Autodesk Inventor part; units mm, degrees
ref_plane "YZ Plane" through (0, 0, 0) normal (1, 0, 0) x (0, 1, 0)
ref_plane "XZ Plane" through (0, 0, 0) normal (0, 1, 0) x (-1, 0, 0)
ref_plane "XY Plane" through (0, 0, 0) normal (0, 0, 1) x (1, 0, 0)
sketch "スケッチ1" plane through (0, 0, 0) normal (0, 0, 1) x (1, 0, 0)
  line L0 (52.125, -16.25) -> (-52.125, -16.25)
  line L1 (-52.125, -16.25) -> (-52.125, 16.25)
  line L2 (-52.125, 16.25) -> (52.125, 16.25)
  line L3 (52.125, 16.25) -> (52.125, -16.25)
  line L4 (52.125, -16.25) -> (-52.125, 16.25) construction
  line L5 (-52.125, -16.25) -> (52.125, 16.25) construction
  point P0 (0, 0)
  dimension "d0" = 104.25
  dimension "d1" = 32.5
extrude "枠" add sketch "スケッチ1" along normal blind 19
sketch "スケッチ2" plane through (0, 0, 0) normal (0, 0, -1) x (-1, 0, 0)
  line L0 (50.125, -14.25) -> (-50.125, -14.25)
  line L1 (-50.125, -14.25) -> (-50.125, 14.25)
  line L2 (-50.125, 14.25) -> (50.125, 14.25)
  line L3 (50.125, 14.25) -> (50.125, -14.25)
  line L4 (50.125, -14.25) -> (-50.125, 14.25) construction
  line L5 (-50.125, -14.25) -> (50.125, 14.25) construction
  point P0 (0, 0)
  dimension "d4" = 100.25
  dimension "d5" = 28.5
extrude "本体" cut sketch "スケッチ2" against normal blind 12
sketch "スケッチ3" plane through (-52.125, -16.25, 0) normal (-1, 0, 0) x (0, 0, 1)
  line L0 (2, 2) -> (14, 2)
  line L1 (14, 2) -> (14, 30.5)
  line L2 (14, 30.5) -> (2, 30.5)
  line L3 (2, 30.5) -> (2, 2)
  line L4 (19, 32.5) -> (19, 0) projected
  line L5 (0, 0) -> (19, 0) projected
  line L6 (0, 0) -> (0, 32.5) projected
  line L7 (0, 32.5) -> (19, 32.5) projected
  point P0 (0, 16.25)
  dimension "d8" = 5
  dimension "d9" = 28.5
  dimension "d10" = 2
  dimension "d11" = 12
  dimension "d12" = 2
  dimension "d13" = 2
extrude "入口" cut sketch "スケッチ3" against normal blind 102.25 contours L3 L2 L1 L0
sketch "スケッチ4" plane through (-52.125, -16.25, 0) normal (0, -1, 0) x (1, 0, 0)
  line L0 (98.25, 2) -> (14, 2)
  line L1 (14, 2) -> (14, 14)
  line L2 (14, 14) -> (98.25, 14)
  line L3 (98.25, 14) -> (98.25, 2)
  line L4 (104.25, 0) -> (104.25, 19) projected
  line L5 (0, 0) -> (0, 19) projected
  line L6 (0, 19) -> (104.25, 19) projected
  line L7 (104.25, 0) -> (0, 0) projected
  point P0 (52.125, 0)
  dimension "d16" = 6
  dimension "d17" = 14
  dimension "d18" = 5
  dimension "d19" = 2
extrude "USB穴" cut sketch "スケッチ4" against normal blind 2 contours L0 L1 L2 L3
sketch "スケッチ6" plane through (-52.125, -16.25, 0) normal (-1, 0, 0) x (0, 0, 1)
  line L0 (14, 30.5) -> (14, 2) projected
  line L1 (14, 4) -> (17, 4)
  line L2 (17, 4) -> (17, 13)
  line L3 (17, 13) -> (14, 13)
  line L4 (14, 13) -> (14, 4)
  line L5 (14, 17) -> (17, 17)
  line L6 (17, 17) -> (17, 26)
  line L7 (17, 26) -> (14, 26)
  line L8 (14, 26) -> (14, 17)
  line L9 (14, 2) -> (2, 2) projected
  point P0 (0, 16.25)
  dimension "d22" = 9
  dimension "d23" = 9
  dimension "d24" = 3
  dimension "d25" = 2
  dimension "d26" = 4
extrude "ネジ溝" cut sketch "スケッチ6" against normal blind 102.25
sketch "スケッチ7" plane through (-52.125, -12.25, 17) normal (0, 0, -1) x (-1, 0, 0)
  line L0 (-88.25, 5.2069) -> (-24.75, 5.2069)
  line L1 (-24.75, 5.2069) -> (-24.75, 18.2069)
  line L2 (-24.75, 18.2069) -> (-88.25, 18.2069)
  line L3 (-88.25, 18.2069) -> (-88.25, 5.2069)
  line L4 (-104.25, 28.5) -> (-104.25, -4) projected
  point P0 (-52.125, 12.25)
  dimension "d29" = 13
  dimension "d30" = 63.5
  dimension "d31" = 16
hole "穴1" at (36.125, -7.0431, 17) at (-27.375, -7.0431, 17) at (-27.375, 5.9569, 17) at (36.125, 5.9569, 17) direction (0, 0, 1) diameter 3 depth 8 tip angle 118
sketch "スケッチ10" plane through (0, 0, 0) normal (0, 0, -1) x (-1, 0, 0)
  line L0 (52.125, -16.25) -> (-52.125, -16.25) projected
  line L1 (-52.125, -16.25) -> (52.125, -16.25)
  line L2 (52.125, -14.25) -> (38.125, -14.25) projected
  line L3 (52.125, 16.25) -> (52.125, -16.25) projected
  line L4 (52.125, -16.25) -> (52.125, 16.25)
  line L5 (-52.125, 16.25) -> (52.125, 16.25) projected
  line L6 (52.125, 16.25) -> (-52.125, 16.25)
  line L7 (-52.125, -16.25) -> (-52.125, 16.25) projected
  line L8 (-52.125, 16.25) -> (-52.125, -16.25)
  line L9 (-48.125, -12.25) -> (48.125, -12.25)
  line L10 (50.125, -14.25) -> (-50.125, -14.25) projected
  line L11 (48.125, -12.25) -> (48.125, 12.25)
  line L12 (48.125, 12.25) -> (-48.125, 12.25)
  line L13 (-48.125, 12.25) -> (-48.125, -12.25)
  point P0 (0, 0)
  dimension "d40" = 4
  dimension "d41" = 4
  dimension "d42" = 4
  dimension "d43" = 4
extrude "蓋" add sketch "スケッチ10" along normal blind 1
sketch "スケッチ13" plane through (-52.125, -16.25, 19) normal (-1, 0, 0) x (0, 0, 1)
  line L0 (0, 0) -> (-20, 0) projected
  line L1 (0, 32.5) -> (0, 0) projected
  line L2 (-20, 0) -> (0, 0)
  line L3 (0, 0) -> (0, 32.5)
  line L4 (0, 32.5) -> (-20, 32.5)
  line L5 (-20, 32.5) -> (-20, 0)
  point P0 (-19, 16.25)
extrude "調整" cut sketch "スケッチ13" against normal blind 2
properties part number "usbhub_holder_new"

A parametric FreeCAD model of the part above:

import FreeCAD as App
import Part
import Sketcher

V = App.Vector

doc = App.newDocument("Part")
body = doc.addObject("PartDesign::Body", "Body")

# Sketch on XY plane
sketch1 = body.newObject("Sketcher::SketchObject", "Sketch")
sketch1.AttachmentSupport = (doc.getObject("XY_Plane"), [""])
sketch1.MapMode = "FlatFace"
sketch1.addGeometry([
    Part.LineSegment(V(-52, -16, 0), V(52, -16, 0)),
    Part.LineSegment(V(52, -16, 0), V(52, 16, 0)),
    Part.LineSegment(V(52, 16, 0), V(-52, 16, 0)),
    Part.LineSegment(V(-52, 16, 0), V(-52, -16, 0)),
], False)
sketch1.addConstraint([
    Sketcher.Constraint("Coincident", 0, 2, 1, 1),
    Sketcher.Constraint("Coincident", 1, 2, 2, 1),
    Sketcher.Constraint("Coincident", 2, 2, 3, 1),
    Sketcher.Constraint("Coincident", 3, 2, 0, 1),
    Sketcher.Constraint("Horizontal", 0),
    Sketcher.Constraint("Vertical", 1),
    Sketcher.Constraint("Horizontal", 2),
    Sketcher.Constraint("Vertical", 3),
    Sketcher.Constraint("Symmetric", 0, 2, 2, 2, -1, 1),
    Sketcher.Constraint("DistanceY", 1, 1, 1, 2, 32.5),
    Sketcher.Constraint("DistanceX", 0, 1, 0, 2, 104.25),
])
pad1 = body.newObject("PartDesign::Pad", "Pad")
pad1.Profile = sketch1
pad1.Length = 19

# Sketch on XY plane
sketch2 = body.newObject("Sketcher::SketchObject", "Sketch001")
sketch2.AttachmentSupport = (doc.getObject("XY_Plane"), [""])
sketch2.MapMode = "FlatFace"
sketch2.addGeometry([
    Part.LineSegment(V(50, -14, 0), V(-50, -14, 0)),
    Part.LineSegment(V(-50, -14, 0), V(-50, 14, 0)),
    Part.LineSegment(V(-50, 14, 0), V(50, 14, 0)),
    Part.LineSegment(V(50, 14, 0), V(50, -14, 0)),
], False)
sketch2.addConstraint([
    Sketcher.Constraint("Coincident", 0, 2, 1, 1),
    Sketcher.Constraint("Coincident", 1, 2, 2, 1),
    Sketcher.Constraint("Coincident", 2, 2, 3, 1),
    Sketcher.Constraint("Coincident", 3, 2, 0, 1),
    Sketcher.Constraint("Horizontal", 0),
    Sketcher.Constraint("Vertical", 1),
    Sketcher.Constraint("Horizontal", 2),
    Sketcher.Constraint("Vertical", 3),
    Sketcher.Constraint("Symmetric", 0, 2, 2, 2, -1, 1),
    Sketcher.Constraint("DistanceY", 1, 1, 1, 2, 28.5),
    Sketcher.Constraint("DistanceX", 0, 2, 0, 1, 100.25),
])
pocket1 = body.newObject("PartDesign::Pocket", "Pocket")
pocket1.Profile = sketch2
pocket1.Length = 12
pocket1.Reversed = True

# Sketch on YZ plane
sketch3 = body.newObject("Sketcher::SketchObject", "Sketch002")
sketch3.AttachmentSupport = (doc.getObject("YZ_Plane"), [""])
sketch3.MapMode = "FlatFace"
sketch3.AttachmentOffset = App.Placement(V(0, 0, -52.125), App.Rotation())
sketch3.addGeometry([
    Part.LineSegment(V(14, 2, 0), V(-14, 2, 0)),
    Part.LineSegment(V(-14, 2, 0), V(-14, 14, 0)),
    Part.LineSegment(V(-14, 14, 0), V(14, 14, 0)),
    Part.LineSegment(V(14, 14, 0), V(14, 2, 0)),
], False)
sketch3.addConstraint([
    Sketcher.Constraint("Coincident", 0, 2, 1, 1),
    Sketcher.Constraint("Coincident", 1, 2, 2, 1),
    Sketcher.Constraint("Coincident", 2, 2, 3, 1),
    Sketcher.Constraint("Coincident", 3, 2, 0, 1),
    Sketcher.Constraint("Horizontal", 0),
    Sketcher.Constraint("Vertical", 1),
    Sketcher.Constraint("Horizontal", 2),
    Sketcher.Constraint("Vertical", 3),
    Sketcher.Constraint("DistanceY", 1, 1, 1, 2, 12.0),
    Sketcher.Constraint("DistanceX", 0, 2, 0, 1, 28.5),
    Sketcher.Constraint("DistanceY", -1, 1, 0, 2, 2.0),
    Sketcher.Constraint("DistanceX", 0, 2, -1, 1, 14.25),
])
pocket2 = body.newObject("PartDesign::Pocket", "Pocket001")
pocket2.Profile = sketch3
pocket2.Length = 102.25
pocket2.Reversed = True

# Sketch on XZ plane
sketch4 = body.newObject("Sketcher::SketchObject", "Sketch003")
sketch4.AttachmentSupport = (doc.getObject("XZ_Plane"), [""])
sketch4.MapMode = "FlatFace"
sketch4.AttachmentOffset = App.Placement(V(0, 0, 16.25), App.Rotation())
sketch4.addGeometry([
    Part.LineSegment(V(-38, 2, 0), V(46, 2, 0)),
    Part.LineSegment(V(46, 2, 0), V(46, 14, 0)),
    Part.LineSegment(V(46, 14, 0), V(-38, 14, 0)),
    Part.LineSegment(V(-38, 14, 0), V(-38, 2, 0)),
], False)
sketch4.addConstraint([
    Sketcher.Constraint("Coincident", 0, 2, 1, 1),
    Sketcher.Constraint("Coincident", 1, 2, 2, 1),
    Sketcher.Constraint("Coincident", 2, 2, 3, 1),
    Sketcher.Constraint("Coincident", 3, 2, 0, 1),
    Sketcher.Constraint("Horizontal", 0),
    Sketcher.Constraint("Vertical", 1),
    Sketcher.Constraint("Horizontal", 2),
    Sketcher.Constraint("Vertical", 3),
    Sketcher.Constraint("DistanceY", -1, 1, 0, 2, 2.0),
    Sketcher.Constraint("DistanceY", -1, 1, 1, 2, 14.0),
    Sketcher.Constraint("DistanceX", 0, 1, 0, 2, 84.25),
    Sketcher.Constraint("DistanceX", -1, 1, 0, 2, 46.125),
])
pocket3 = body.newObject("PartDesign::Pocket", "Pocket002")
pocket3.Profile = sketch4
pocket3.Length = 2

# Sketch on YZ plane
sketch5 = body.newObject("Sketcher::SketchObject", "Sketch004")
sketch5.AttachmentSupport = (doc.getObject("YZ_Plane"), [""])
sketch5.MapMode = "FlatFace"
sketch5.AttachmentOffset = App.Placement(V(0, 0, -52.125), App.Rotation())
sketch5.addGeometry([
    Part.LineSegment(V(9.8, 17, 0), V(9.8, 14, 0)),  # 0
    Part.LineSegment(V(9.8, 14, 0), V(0.8, 14, 0)),  # 1
    Part.LineSegment(V(0.8, 14, 0), V(0.8, 17, 0)),  # 2
    Part.LineSegment(V(0.8, 17, 0), V(9.8, 17, 0)),  # 3
    Part.LineSegment(V(-3.2, 17, 0), V(-3.2, 14, 0)),  # 4
    Part.LineSegment(V(-3.2, 14, 0), V(-12.2, 14, 0)),  # 5
    Part.LineSegment(V(-12.2, 14, 0), V(-12.2, 17, 0)),  # 6
    Part.LineSegment(V(-12.2, 17, 0), V(-3.2, 17, 0)),  # 7
], False)
sketch5.addConstraint([
    Sketcher.Constraint("Coincident", 0, 2, 1, 1),
    Sketcher.Constraint("Coincident", 1, 2, 2, 1),
    Sketcher.Constraint("Coincident", 2, 2, 3, 1),
    Sketcher.Constraint("Coincident", 3, 2, 0, 1),
    Sketcher.Constraint("Coincident", 4, 2, 5, 1),
    Sketcher.Constraint("Coincident", 5, 2, 6, 1),
    Sketcher.Constraint("Coincident", 6, 2, 7, 1),
    Sketcher.Constraint("Coincident", 7, 2, 4, 1),
    Sketcher.Constraint("Vertical", 0),
    Sketcher.Constraint("Horizontal", 1),
    Sketcher.Constraint("Vertical", 2),
    Sketcher.Constraint("Horizontal", 3),
    Sketcher.Constraint("Vertical", 4),
    Sketcher.Constraint("Horizontal", 5),
    Sketcher.Constraint("Vertical", 6),
    Sketcher.Constraint("Horizontal", 7),
    Sketcher.Constraint("Horizontal", 1, 2, 4, 2),
    Sketcher.Constraint("Horizontal", 3, 2, 6, 2),
    Sketcher.Constraint("Equal", 3, 5),
    Sketcher.Constraint("DistanceX", 1, 2, 1, 1, 9.0),
    Sketcher.Constraint("DistanceY", 0, 2, 0, 1, 3.0),
    Sketcher.Constraint("DistanceX", 4, 2, 1, 2, 4.0),
    Sketcher.Constraint("DistanceY", -1, 1, 0, 2, 14.0),
    Sketcher.Constraint("DistanceX", -1, 1, 0, 2, 9.75),
])
pocket4 = body.newObject("PartDesign::Pocket", "Pocket003")
pocket4.Profile = sketch5
pocket4.Length = 102.25
pocket4.Reversed = True

# Sketch on XY plane
sketch6 = body.newObject("Sketcher::SketchObject", "Sketch005")
sketch6.AttachmentSupport = (doc.getObject("XY_Plane"), [""])
sketch6.MapMode = "FlatFace"
sketch6.AttachmentOffset = App.Placement(V(0, 0, 17), App.Rotation())
sketch6.addGeometry([
    Part.Circle(V(36.1, -7, 0), V(0, 0, 1), 1.5),
    Part.Circle(V(-27.4, -7, 0), V(0, 0, 1), 1.5),
    Part.Circle(V(-27.4, 6, 0), V(0, 0, 1), 1.5),
    Part.Circle(V(36.1, 6, 0), V(0, 0, 1), 1.5),
], False)
sketch6.addConstraint([
    Sketcher.Constraint("Equal", 0, 1),
    Sketcher.Constraint("Equal", 1, 2),
    Sketcher.Constraint("Equal", 2, 3),
    Sketcher.Constraint("Horizontal", 0, 3, 1, 3),
    Sketcher.Constraint("Horizontal", 2, 3, 3, 3),
    Sketcher.Constraint("Vertical", 1, 3, 2, 3),
    Sketcher.Constraint("Vertical", 0, 3, 3, 3),
    Sketcher.Constraint("Diameter", 0, 3.0),
    Sketcher.Constraint("DistanceY", 1, 3, 2, 3, 13.0),
    Sketcher.Constraint("DistanceX", 1, 3, 0, 3, 63.5),
    Sketcher.Constraint("DistanceX", -1, 1, 0, 3, 36.125),
    Sketcher.Constraint("DistanceY", 0, 3, -1, 1, 7.043),
])
doc.recompute()
hole = body.newObject("PartDesign::Hole", "Hole")
hole.Profile = sketch6
hole.ThreadType = "None"
hole.Diameter = 3
hole.DepthType = "Dimension"
hole.Depth = 8
hole.DrillPoint = "Angled"
hole.DrillPointAngle = 118
hole.Reversed = True

# Sketch on XY plane
sketch7 = body.newObject("Sketcher::SketchObject", "Sketch006")
sketch7.AttachmentSupport = (doc.getObject("XY_Plane"), [""])
sketch7.MapMode = "FlatFace"
sketch7.addGeometry([
    Part.LineSegment(V(52, -16, 0), V(-52, -16, 0)),  # 0
    Part.LineSegment(V(-52, -16, 0), V(-52, 16, 0)),  # 1
    Part.LineSegment(V(-52, 16, 0), V(52, 16, 0)),  # 2
    Part.LineSegment(V(52, 16, 0), V(52, -16, 0)),  # 3
    Part.LineSegment(V(-48, -12, 0), V(48, -12, 0)),  # 4
    Part.LineSegment(V(48, -12, 0), V(48, 12, 0)),  # 5
    Part.LineSegment(V(48, 12, 0), V(-48, 12, 0)),  # 6
    Part.LineSegment(V(-48, 12, 0), V(-48, -12, 0)),  # 7
], False)
sketch7.addConstraint([
    Sketcher.Constraint("Coincident", 0, 2, 1, 1),
    Sketcher.Constraint("Coincident", 1, 2, 2, 1),
    Sketcher.Constraint("Coincident", 2, 2, 3, 1),
    Sketcher.Constraint("Coincident", 3, 2, 0, 1),
    Sketcher.Constraint("Coincident", 4, 2, 5, 1),
    Sketcher.Constraint("Coincident", 5, 2, 6, 1),
    Sketcher.Constraint("Coincident", 6, 2, 7, 1),
    Sketcher.Constraint("Coincident", 7, 2, 4, 1),
    Sketcher.Constraint("Horizontal", 0),
    Sketcher.Constraint("Vertical", 1),
    Sketcher.Constraint("Horizontal", 2),
    Sketcher.Constraint("Vertical", 3),
    Sketcher.Constraint("Horizontal", 4),
    Sketcher.Constraint("Vertical", 5),
    Sketcher.Constraint("Horizontal", 6),
    Sketcher.Constraint("Vertical", 7),
    Sketcher.Constraint("Symmetric", 0, 2, 2, 2, -1, 1),
    Sketcher.Constraint("Symmetric", 4, 2, 6, 2, -1, 1),
    Sketcher.Constraint("DistanceX", 4, 2, 3, 2, 4.0),
    Sketcher.Constraint("DistanceY", 3, 2, 4, 2, 4.0),
    Sketcher.Constraint("DistanceY", 1, 1, 1, 2, 32.5),
    Sketcher.Constraint("DistanceX", 0, 2, 0, 1, 104.25),
])
pad2 = body.newObject("PartDesign::Pad", "Pad001")
pad2.Profile = sketch7
pad2.Length = 1
pad2.Reversed = True

# Sketch on YZ plane
sketch8 = body.newObject("Sketcher::SketchObject", "Sketch007")
sketch8.AttachmentSupport = (doc.getObject("YZ_Plane"), [""])
sketch8.MapMode = "FlatFace"
sketch8.AttachmentOffset = App.Placement(V(0, 0, -52.125), App.Rotation())
sketch8.addGeometry([
    Part.LineSegment(V(-16, -1, 0), V(-16, 19, 0)),
    Part.LineSegment(V(-16, 19, 0), V(16, 19, 0)),
    Part.LineSegment(V(16, 19, 0), V(16, -1, 0)),
    Part.LineSegment(V(16, -1, 0), V(-16, -1, 0)),
], False)
sketch8.addConstraint([
    Sketcher.Constraint("Coincident", 0, 2, 1, 1),
    Sketcher.Constraint("Coincident", 1, 2, 2, 1),
    Sketcher.Constraint("Coincident", 2, 2, 3, 1),
    Sketcher.Constraint("Coincident", 3, 2, 0, 1),
    Sketcher.Constraint("Vertical", 0),
    Sketcher.Constraint("Horizontal", 1),
    Sketcher.Constraint("Vertical", 2),
    Sketcher.Constraint("Horizontal", 3),
    Sketcher.Constraint("DistanceY", 0, 1, 0, 2, 20.0),
    Sketcher.Constraint("DistanceX", 1, 1, 1, 2, 32.5),
    Sketcher.Constraint("DistanceY", -1, 1, 0, 2, 19.0),
    Sketcher.Constraint("DistanceX", 0, 2, -1, 1, 16.25),
])
pocket5 = body.newObject("PartDesign::Pocket", "Pocket004")
pocket5.Profile = sketch8
pocket5.Length = 2
pocket5.Reversed = True

doc.recompute()
